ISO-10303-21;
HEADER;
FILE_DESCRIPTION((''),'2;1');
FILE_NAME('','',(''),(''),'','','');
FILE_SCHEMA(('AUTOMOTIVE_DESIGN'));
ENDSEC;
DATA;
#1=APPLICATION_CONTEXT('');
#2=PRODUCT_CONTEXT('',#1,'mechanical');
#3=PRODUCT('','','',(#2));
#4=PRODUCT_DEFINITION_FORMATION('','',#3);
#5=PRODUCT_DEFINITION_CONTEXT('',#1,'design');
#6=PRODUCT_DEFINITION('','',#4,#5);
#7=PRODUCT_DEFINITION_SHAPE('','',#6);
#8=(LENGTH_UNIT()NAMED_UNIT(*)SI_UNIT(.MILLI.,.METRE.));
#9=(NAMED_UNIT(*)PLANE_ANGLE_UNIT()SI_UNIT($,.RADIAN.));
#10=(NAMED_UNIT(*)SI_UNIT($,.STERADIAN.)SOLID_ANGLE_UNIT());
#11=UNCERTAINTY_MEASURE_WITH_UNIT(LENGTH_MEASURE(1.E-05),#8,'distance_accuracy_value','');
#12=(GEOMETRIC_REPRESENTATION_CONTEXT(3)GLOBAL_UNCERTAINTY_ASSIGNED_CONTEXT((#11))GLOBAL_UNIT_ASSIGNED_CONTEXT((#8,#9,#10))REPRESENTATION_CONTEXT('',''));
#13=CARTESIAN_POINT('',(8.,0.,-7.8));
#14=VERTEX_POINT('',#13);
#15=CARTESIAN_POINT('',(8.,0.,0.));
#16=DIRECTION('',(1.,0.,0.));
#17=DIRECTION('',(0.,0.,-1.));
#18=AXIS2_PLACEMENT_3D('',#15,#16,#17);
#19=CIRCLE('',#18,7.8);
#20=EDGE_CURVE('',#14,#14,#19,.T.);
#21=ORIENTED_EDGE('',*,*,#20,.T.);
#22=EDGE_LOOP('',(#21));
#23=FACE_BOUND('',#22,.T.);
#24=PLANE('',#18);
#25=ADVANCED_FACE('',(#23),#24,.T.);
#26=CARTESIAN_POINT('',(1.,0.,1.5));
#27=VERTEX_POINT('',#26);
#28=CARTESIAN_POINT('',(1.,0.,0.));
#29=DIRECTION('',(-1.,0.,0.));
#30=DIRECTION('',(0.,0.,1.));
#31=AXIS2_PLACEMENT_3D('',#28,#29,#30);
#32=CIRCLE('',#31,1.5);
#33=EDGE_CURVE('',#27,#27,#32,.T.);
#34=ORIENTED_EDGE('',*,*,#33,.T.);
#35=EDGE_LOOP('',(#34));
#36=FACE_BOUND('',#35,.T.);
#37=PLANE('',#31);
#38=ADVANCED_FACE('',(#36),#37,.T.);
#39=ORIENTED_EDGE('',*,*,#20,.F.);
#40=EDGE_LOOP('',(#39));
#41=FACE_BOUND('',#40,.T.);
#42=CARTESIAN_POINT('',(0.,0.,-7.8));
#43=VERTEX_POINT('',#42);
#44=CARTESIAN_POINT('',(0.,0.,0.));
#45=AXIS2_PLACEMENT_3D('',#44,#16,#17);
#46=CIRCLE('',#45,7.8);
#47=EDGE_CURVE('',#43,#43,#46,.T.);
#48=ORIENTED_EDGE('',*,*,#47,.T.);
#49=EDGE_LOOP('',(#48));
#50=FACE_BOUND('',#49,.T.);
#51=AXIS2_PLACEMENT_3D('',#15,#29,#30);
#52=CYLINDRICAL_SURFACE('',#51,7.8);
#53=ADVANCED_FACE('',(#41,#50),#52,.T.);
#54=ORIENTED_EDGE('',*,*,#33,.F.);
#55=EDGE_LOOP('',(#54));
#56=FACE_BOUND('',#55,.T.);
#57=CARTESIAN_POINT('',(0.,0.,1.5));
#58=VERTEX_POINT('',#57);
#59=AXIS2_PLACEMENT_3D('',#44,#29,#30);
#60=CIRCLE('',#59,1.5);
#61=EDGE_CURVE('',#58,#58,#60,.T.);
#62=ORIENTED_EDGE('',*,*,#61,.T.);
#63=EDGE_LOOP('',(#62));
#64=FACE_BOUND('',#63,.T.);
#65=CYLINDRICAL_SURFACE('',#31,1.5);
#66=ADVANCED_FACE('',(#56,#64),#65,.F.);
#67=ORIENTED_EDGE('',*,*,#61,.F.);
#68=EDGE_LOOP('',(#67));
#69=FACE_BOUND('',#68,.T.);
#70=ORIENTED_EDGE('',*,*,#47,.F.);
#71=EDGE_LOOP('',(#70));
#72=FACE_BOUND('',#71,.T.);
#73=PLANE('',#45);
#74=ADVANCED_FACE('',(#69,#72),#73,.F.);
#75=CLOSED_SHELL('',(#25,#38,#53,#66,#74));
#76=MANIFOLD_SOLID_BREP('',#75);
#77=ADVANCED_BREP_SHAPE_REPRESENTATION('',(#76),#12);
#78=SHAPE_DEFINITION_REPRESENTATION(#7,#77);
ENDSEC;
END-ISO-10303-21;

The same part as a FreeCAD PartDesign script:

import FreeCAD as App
import Part
import Sketcher
from FreeCAD import Vector

doc = App.newDocument("Part")
body = doc.addObject("PartDesign::Body", "Body")

sketch1 = doc.addObject("Sketcher::SketchObject", "Sketch")
body.addObject(sketch1)
sketch1.AttachmentSupport = (doc.YZ_Plane, [""])
sketch1.MapMode = "FlatFace"
sketch1.addGeometry(Part.Circle(Vector(0, 0, 0), Vector(0, 0, 1), 8), False)
sketch1.addConstraint(Sketcher.Constraint("Coincident", 0, 3, -1, 1))
sketch1.addConstraint(Sketcher.Constraint("Diameter", 0, 15.6))
pad1 = doc.addObject("PartDesign::Pad", "Pad")
body.addObject(pad1)
pad1.Profile = sketch1
pad1.Length = 8

sketch2 = doc.addObject("Sketcher::SketchObject", "Sketch001")
body.addObject(sketch2)
sketch2.AttachmentSupport = (doc.YZ_Plane, [""])
sketch2.MapMode = "FlatFace"
sketch2.addGeometry(Part.Circle(Vector(0, 0, 0), Vector(0, 0, 1), 1.5), False)
sketch2.addConstraint(Sketcher.Constraint("Coincident", 0, 3, -1, 1))
sketch2.addConstraint(Sketcher.Constraint("Diameter", 0, 3.0))
pocket1 = doc.addObject("PartDesign::Pocket", "Pocket")
body.addObject(pocket1)
pocket1.Profile = sketch2
pocket1.Length = 1
pocket1.Reversed = True

doc.recompute()
